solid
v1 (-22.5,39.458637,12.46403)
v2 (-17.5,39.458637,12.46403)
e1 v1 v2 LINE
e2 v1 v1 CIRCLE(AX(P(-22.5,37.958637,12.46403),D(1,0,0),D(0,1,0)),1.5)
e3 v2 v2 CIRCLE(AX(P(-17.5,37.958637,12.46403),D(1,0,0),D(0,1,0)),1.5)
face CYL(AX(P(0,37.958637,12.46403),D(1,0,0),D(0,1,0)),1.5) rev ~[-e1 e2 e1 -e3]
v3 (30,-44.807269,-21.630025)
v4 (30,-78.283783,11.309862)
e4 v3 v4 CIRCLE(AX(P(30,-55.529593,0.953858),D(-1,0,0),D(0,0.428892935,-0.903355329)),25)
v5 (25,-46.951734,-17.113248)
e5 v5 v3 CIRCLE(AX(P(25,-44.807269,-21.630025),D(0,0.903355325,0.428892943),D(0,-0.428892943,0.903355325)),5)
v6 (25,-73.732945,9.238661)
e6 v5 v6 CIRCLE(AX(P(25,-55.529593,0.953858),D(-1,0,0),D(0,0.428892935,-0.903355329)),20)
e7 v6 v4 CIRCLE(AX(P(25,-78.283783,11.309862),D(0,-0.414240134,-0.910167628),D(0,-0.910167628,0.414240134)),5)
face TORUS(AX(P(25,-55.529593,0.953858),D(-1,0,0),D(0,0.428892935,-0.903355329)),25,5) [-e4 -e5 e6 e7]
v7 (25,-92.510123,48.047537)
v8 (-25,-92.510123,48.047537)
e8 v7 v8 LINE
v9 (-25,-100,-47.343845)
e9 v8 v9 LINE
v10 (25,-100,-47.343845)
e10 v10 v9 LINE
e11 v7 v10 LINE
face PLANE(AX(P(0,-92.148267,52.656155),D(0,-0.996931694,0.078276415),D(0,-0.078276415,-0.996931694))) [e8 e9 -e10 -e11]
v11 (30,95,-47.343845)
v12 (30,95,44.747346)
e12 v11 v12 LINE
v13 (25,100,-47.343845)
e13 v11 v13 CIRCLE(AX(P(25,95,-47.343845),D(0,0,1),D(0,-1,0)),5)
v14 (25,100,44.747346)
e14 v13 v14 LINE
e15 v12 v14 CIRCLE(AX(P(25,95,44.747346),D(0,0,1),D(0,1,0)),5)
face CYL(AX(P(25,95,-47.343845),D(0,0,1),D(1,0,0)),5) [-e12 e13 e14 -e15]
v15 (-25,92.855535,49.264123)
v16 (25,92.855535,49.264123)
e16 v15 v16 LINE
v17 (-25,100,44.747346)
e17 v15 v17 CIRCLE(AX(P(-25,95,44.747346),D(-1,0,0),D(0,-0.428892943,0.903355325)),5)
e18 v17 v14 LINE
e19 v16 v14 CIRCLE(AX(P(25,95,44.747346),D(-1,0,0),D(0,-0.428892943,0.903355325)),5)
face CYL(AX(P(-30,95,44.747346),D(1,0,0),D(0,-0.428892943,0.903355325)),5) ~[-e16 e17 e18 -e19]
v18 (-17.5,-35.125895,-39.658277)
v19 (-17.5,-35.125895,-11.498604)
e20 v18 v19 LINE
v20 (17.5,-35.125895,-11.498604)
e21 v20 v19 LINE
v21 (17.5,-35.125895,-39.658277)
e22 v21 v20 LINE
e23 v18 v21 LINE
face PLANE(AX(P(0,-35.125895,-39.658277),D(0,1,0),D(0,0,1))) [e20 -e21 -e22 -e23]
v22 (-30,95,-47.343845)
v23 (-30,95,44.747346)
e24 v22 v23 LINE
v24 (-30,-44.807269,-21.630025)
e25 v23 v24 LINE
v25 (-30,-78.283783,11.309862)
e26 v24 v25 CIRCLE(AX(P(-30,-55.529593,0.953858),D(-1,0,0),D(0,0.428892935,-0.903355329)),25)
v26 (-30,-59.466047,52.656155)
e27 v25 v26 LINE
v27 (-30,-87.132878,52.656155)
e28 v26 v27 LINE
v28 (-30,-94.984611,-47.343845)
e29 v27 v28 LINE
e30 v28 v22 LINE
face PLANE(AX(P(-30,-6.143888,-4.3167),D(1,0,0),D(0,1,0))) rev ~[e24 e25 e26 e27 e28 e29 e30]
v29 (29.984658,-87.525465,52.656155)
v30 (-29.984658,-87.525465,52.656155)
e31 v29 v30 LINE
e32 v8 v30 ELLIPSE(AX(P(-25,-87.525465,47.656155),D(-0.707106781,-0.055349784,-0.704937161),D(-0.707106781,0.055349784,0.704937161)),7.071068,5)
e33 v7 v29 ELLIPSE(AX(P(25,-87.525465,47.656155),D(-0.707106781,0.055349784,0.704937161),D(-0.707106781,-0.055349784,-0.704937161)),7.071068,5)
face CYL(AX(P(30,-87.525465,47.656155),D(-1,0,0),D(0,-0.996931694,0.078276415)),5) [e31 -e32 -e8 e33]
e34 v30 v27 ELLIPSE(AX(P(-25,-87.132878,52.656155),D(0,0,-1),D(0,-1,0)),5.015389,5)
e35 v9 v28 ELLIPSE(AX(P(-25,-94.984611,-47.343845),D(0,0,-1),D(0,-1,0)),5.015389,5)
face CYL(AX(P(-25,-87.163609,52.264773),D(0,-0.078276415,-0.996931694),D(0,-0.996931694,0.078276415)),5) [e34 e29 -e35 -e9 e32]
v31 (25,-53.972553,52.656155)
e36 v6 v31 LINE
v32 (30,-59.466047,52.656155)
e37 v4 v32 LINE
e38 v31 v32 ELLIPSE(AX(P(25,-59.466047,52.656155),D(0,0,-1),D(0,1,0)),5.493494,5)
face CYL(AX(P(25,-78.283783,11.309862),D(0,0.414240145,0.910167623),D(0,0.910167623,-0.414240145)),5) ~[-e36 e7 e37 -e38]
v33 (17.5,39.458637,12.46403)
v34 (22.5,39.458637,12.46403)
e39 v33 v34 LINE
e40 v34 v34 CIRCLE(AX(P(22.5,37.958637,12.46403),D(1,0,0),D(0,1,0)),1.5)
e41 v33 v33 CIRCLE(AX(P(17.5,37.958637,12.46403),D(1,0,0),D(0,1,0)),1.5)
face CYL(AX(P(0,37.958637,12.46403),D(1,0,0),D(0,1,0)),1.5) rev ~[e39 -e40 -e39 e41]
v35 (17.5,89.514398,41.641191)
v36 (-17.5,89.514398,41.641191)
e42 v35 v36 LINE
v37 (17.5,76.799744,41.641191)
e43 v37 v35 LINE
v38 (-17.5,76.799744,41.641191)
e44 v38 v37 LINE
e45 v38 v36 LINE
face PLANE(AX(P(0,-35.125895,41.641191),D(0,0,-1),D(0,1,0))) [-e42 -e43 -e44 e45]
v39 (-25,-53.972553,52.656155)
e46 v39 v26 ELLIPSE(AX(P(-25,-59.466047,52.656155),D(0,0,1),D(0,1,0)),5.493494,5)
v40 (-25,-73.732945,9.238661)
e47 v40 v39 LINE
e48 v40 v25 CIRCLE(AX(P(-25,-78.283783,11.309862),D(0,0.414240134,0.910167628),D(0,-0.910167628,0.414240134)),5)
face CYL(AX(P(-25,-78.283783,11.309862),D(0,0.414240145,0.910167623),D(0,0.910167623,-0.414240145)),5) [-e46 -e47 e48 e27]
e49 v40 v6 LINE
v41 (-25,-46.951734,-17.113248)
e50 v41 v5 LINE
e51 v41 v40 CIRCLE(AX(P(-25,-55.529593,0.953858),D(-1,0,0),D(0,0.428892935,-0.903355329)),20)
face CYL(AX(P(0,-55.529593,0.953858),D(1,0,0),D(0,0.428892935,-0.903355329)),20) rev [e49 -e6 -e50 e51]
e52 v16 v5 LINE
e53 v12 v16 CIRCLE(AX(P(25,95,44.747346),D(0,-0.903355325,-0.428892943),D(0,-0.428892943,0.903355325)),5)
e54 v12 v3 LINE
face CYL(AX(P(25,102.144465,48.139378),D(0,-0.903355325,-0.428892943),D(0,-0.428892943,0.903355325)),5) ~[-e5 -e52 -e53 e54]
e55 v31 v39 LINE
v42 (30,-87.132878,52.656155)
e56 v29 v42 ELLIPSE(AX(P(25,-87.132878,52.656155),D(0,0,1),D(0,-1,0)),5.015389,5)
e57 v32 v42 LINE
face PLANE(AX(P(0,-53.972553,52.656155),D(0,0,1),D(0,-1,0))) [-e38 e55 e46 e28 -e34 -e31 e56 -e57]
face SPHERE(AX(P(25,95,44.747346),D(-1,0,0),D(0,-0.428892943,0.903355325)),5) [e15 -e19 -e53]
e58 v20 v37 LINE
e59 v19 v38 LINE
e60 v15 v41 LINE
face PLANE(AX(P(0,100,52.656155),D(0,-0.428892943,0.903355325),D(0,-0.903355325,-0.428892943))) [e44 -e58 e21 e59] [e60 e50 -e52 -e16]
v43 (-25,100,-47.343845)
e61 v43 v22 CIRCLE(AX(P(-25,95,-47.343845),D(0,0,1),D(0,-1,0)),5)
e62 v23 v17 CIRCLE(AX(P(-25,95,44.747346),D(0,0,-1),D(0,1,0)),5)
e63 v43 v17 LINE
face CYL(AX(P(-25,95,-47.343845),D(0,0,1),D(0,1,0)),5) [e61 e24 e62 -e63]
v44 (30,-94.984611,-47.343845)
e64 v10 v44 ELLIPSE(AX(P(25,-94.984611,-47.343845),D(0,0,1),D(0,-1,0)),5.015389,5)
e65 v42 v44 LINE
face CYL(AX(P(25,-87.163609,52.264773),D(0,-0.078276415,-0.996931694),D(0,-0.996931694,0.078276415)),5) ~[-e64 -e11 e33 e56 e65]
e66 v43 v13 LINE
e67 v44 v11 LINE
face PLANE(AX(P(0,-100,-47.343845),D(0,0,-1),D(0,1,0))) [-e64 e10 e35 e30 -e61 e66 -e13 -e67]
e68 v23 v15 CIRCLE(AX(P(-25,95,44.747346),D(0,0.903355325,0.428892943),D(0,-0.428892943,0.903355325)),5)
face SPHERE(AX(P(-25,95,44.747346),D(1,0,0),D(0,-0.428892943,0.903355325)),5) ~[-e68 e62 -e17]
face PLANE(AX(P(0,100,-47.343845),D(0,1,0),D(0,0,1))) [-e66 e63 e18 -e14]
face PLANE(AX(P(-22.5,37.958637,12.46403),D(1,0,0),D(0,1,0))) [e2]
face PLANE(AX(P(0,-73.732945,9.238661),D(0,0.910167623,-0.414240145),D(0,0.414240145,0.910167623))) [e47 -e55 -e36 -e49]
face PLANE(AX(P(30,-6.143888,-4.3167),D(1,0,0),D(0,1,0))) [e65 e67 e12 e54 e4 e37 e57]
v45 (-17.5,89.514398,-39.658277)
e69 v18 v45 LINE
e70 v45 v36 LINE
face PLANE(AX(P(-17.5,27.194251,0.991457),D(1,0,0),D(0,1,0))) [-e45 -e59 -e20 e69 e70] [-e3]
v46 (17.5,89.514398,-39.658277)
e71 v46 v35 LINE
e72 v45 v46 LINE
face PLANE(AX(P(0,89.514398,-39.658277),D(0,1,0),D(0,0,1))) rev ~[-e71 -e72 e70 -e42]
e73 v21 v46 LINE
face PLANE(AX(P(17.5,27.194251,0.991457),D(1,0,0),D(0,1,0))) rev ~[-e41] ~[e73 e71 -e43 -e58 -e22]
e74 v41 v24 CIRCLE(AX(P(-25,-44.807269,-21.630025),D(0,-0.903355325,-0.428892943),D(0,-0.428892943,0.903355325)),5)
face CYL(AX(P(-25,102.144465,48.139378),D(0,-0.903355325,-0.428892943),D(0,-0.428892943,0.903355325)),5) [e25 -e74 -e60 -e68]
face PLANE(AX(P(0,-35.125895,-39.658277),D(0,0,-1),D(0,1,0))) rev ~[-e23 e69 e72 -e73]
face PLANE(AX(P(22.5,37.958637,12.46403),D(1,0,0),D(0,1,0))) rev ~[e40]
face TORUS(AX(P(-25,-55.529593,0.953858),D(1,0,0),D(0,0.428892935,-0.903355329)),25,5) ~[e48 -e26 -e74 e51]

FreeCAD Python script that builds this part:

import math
import FreeCAD as App
import Part
import Sketcher
from FreeCAD import Vector


def edges_at(feature, points):
    """Names of the edges that pass closest to the given points."""
    edges = feature.Shape.Edges
    near = lambda p: min(range(len(edges)), key=lambda i: edges[i].distToShape(Part.Vertex(*p))[0])
    return sorted({f"Edge{near(p) + 1}" for p in points})

doc = App.newDocument("Part")
body = doc.addObject("PartDesign::Body", "Body")

# Sketch on YZ plane
sketch1 = body.newObject("Sketcher::SketchObject", "Sketch")
sketch1.AttachmentSupport = (doc.getObject("YZ_Plane"), [""])
sketch1.MapMode = "FlatFace"
sketch1.addGeometry([
    Part.LineSegment(Vector(-100, -47, 0), Vector(100, -47, 0)),  # 0
    Part.LineSegment(Vector(100, -47, 0), Vector(100, 53, 0)),  # 1
    Part.LineSegment(Vector(100, 53, 0), Vector(-47, -17, 0)),  # 2
    Part.ArcOfCircle(Part.Circle(Vector(-56, 1, 0), Vector(0, 0, 1), 20), math.radians(156), math.radians(295)),  # 3
    Part.LineSegment(Vector(-74, 9, 0), Vector(-54, 53, 0)),  # 4
    Part.LineSegment(Vector(-54, 53, 0), Vector(-92, 53, 0)),  # 5
    Part.LineSegment(Vector(-92, 53, 0), Vector(-100, -47, 0)),  # 6
], False)
sketch1.addConstraint([
    Sketcher.Constraint("Coincident", 0, 2, 1, 1),
    Sketcher.Constraint("Coincident", 1, 2, 2, 1),
    Sketcher.Constraint("Tangent", 2, 2, 3, 2),
    Sketcher.Constraint("Tangent", 3, 1, 4, 1),
    Sketcher.Constraint("Coincident", 4, 2, 5, 1),
    Sketcher.Constraint("Coincident", 5, 2, 6, 1),
    Sketcher.Constraint("Coincident", 6, 2, 0, 1),
    Sketcher.Constraint("Horizontal", 0),
    Sketcher.Constraint("Vertical", 1),
    Sketcher.Constraint("Horizontal", 5),
    Sketcher.Constraint("Horizontal", 1, 2, 4, 2),
    Sketcher.Constraint("Radius", 3, 20.0),
    Sketcher.Constraint("DistanceX", 0, 1, 0, 2, 200.0),
    Sketcher.Constraint("DistanceY", 1, 1, 1, 2, 100.0),
    Sketcher.Constraint("DistanceX", -1, 1, 0, 2, 100.0),
    Sketcher.Constraint("DistanceX", 5, 2, 5, 1, 38.175714),
    Sketcher.Constraint("DistanceY", -1, 1, 3, 3, 0.953858),
    Sketcher.Constraint("DistanceY", -1, 1, 3, 1, 9.238661),
    Sketcher.Constraint("DistanceX", 3, 3, 2, 2, 8.577859),
    Sketcher.Constraint("DistanceX", 3, 1, 4, 2, 19.760392),
])
pad1 = body.newObject("PartDesign::Pad", "Pad")
pad1.Profile = sketch1
pad1.Length = 60
pad1.Midplane = True
doc.recompute()

fillet = body.newObject("PartDesign::Fillet", "Fillet")
fillet.Base = (pad1, edges_at(pad1, [
    (0, -92.148, 52.656),
    (0, 100, 52.656),
    (30, 26.524, 17.771),
    (-30, 26.524, 17.771),
    (30, 100, 2.656),
    (-30, 100, 2.656),
    (30, -96.074, 2.656),
    (-30, -96.074, 2.656),
]))
fillet.Radius = 5

# Sketch on YZ plane
sketch2 = body.newObject("Sketcher::SketchObject", "Sketch001")
sketch2.AttachmentSupport = (doc.getObject("YZ_Plane"), [""])
sketch2.MapMode = "FlatFace"
sketch2.addGeometry([
    Part.LineSegment(Vector(-35, 42, 0), Vector(-35, -40, 0)),
    Part.LineSegment(Vector(-35, -40, 0), Vector(90, -40, 0)),
    Part.LineSegment(Vector(90, -40, 0), Vector(90, 42, 0)),
    Part.LineSegment(Vector(90, 42, 0), Vector(-35, 42, 0)),
], False)
sketch2.addConstraint([
    Sketcher.Constraint("Coincident", 0, 2, 1, 1),
    Sketcher.Constraint("Coincident", 1, 2, 2, 1),
    Sketcher.Constraint("Coincident", 2, 2, 3, 1),
    Sketcher.Constraint("Coincident", 3, 2, 0, 1),
    Sketcher.Constraint("Vertical", 0),
    Sketcher.Constraint("Horizontal", 1),
    Sketcher.Constraint("Vertical", 2),
    Sketcher.Constraint("Horizontal", 3),
    Sketcher.Constraint("DistanceY", 0, 2, 0, 1, 81.299469),
    Sketcher.Constraint("DistanceX", 1, 1, 1, 2, 124.640293),
    Sketcher.Constraint("DistanceY", -1, 1, 2, 2, 41.641191),
    Sketcher.Constraint("DistanceX", 0, 2, -1, 1, 35.125895),
])
pocket1 = body.newObject("PartDesign::Pocket", "Pocket")
pocket1.Profile = sketch2
pocket1.Length = 35
pocket1.Midplane = True

# Sketch on YZ plane
sketch3 = body.newObject("Sketcher::SketchObject", "Sketch002")
sketch3.AttachmentSupport = (doc.getObject("YZ_Plane"), [""])
sketch3.MapMode = "FlatFace"
sketch3.addGeometry(Part.Circle(Vector(38, 12.5, 0), Vector(0, 0, 1), 1.5), False)
sketch3.addConstraint([
    Sketcher.Constraint("Diameter", 0, 3.0),
    Sketcher.Constraint("DistanceY", -1, 1, 0, 3, 12.46403),
    Sketcher.Constraint("DistanceX", -1, 1, 0, 3, 37.958637),
])
pocket2 = body.newObject("PartDesign::Pocket", "Pocket001")
pocket2.Profile = sketch3
pocket2.Length = 45
pocket2.Midplane = True

doc.recompute()
